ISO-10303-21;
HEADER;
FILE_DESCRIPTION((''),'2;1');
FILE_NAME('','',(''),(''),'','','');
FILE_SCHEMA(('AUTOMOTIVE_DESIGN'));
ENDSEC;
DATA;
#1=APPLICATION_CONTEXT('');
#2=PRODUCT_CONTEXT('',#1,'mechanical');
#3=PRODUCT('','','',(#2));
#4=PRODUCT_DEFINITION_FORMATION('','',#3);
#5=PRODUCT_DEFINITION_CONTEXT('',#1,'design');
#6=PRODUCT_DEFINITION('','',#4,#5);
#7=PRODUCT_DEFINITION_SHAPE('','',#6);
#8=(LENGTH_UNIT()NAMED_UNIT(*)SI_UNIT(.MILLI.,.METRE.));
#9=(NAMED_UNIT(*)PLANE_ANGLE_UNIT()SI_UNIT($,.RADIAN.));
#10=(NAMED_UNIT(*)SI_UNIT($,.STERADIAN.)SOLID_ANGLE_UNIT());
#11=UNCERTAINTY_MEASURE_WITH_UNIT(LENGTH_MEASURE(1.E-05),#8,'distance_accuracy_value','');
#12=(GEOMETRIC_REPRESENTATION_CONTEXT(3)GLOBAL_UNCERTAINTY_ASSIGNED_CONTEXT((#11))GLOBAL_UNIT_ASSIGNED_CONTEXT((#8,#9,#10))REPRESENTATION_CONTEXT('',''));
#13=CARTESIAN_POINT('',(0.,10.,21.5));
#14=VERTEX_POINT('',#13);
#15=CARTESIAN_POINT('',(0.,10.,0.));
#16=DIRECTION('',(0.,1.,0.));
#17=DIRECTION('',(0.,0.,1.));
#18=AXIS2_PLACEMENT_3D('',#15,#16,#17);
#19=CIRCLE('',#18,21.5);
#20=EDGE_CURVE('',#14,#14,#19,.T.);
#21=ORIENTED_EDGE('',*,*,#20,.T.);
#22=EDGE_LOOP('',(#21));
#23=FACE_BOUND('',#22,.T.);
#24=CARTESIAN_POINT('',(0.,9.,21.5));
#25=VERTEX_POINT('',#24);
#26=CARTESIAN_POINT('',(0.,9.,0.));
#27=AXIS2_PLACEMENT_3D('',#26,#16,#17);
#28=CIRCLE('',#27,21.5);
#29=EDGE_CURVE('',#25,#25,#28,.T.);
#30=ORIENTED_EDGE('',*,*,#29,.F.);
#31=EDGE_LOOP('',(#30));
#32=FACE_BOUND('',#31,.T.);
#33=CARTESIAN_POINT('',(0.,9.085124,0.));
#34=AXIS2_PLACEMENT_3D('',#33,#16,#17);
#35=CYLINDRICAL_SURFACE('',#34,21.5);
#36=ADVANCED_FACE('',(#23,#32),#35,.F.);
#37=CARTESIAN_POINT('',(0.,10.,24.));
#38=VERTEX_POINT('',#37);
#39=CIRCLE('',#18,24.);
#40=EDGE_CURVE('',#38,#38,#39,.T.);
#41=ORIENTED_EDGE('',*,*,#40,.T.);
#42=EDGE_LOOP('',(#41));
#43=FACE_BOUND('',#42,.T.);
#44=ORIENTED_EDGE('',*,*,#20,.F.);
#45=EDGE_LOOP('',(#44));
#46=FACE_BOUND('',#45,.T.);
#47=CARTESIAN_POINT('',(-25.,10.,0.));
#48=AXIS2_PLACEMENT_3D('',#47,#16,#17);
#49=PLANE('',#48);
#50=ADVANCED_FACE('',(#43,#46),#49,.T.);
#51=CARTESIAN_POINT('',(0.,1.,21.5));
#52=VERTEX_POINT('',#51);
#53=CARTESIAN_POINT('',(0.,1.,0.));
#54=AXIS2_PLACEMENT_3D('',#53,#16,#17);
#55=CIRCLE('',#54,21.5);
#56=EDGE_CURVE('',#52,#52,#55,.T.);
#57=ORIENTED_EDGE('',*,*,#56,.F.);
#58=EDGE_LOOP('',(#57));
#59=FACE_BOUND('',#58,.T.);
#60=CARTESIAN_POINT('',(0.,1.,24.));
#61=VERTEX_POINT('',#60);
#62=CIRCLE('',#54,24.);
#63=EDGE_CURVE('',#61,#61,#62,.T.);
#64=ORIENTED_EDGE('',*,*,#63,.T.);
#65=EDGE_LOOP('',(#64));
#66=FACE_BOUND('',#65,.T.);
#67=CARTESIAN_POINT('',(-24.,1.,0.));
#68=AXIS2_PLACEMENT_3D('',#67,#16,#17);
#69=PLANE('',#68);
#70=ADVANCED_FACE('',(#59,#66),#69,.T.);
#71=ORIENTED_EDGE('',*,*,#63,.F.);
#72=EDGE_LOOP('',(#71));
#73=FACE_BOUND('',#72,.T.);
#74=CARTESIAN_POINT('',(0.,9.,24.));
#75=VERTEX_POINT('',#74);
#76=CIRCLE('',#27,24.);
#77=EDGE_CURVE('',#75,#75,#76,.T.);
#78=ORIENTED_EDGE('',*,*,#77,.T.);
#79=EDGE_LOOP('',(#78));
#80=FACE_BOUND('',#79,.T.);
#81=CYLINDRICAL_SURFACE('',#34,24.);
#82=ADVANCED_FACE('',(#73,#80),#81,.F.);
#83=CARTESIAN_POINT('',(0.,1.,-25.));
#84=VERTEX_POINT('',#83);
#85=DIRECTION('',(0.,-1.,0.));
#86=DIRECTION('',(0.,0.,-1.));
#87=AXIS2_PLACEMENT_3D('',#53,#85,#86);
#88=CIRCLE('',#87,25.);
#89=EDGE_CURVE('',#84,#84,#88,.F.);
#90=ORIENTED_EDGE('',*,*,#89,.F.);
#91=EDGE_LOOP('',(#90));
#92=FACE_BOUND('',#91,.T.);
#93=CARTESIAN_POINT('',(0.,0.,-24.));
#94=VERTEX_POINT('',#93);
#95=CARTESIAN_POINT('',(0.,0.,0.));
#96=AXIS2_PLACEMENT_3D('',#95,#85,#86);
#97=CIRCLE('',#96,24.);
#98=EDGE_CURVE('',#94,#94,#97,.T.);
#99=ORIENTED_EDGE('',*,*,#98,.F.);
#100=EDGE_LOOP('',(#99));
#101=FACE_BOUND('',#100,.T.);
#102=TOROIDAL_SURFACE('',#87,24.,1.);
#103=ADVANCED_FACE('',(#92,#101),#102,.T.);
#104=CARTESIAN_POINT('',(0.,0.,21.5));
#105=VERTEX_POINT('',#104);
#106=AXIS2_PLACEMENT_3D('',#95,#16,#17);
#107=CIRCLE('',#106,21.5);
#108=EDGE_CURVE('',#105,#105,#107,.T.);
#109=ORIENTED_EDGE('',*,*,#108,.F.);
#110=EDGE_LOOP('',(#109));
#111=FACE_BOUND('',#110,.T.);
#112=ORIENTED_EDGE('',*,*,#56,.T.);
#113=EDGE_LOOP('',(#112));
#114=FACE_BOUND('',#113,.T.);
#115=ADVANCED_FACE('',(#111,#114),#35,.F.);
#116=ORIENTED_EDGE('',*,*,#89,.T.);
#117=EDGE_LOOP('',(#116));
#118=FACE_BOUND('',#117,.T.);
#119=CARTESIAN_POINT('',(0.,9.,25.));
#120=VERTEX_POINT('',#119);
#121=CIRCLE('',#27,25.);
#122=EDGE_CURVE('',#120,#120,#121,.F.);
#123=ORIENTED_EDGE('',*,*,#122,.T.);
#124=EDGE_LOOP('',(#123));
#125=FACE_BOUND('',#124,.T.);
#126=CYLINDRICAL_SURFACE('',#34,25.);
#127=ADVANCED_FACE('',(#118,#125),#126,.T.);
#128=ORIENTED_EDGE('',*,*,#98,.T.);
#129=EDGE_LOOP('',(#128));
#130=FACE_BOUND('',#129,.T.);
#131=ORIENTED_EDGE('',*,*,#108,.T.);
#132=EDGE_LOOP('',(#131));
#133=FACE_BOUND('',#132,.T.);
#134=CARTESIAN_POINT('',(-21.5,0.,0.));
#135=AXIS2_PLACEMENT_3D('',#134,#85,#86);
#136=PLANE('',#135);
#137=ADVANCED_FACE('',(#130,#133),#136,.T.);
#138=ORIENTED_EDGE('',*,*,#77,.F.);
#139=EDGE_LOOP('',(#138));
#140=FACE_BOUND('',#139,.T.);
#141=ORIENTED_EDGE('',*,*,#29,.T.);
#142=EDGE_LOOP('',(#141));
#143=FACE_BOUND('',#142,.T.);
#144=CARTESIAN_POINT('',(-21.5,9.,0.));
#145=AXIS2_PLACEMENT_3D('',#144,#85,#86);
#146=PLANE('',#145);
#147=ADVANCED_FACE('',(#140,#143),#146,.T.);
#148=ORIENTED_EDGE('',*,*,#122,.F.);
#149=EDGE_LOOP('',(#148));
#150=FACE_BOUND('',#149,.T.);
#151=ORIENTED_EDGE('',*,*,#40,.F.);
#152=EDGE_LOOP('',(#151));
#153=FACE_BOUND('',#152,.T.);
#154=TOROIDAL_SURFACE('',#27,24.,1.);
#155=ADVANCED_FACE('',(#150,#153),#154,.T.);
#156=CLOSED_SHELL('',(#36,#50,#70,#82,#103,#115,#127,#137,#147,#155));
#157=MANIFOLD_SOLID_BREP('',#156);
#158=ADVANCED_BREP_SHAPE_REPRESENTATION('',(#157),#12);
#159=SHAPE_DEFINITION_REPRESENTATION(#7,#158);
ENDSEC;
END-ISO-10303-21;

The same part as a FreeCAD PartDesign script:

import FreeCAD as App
import Part
import Sketcher
from FreeCAD import Vector


def edges_at(feature, points):
    """Names of the edges that pass closest to the given points."""
    edges = feature.Shape.Edges
    near = lambda p: min(range(len(edges)), key=lambda i: edges[i].distToShape(Part.Vertex(*p))[0])
    return sorted({f"Edge{near(p) + 1}" for p in points})


def add_polygon(sketch, points):
    """Adds a closed chain of lines whose ends are joined by coincident constraints."""
    first, n = sketch.GeometryCount, len(points)
    for a, b in zip(points, points[1:] + points[:1]):
        sketch.addGeometry(Part.LineSegment(App.Vector(*a, 0), App.Vector(*b, 0)), False)
    for i in range(n):
        sketch.addConstraint(Sketcher.Constraint("Coincident", first + i, 2, first + (i + 1) % n, 1))

doc = App.newDocument("Part")
params = doc.addObject("Spreadsheet::Sheet", "Params")
for row, (alias, value) in enumerate([
    ("sketch1_height", "1 mm"),
    ("sketch1_height2", "8 mm"),
    ("sketch1_width", "3.5 mm"),
    ("sketch1_width2", "2.5 mm"),
    ("revolution_angle", "360 deg"),
    ("fillet_radius", "1 mm"),
], start=1):
    params.set(f"A{row}", alias)
    params.set(f"B{row}", "=" + value)
    params.setAlias(f"B{row}", alias)

body = doc.addObject("PartDesign::Body", "Body")

sketch1 = body.newObject("Sketcher::SketchObject", "Sketch")
sketch1.AttachmentSupport = (doc.getObject("XY_Plane"), [""])
sketch1.MapMode = "FlatFace"
add_polygon(sketch1, [(-25, 0), (-21.5, 0), (-21.5, 1), (-24, 1), (-24, 9), (-21.5, 9), (-21.5, 10), (-25, 10)])
sketch1.addConstraint([
    Sketcher.Constraint("Horizontal", 0),
    Sketcher.Constraint("Vertical", 1),
    Sketcher.Constraint("Horizontal", 2),
    Sketcher.Constraint("Vertical", 3),
    Sketcher.Constraint("Horizontal", 4),
    Sketcher.Constraint("Vertical", 5),
    Sketcher.Constraint("Horizontal", 6),
    Sketcher.Constraint("Vertical", 7),
    Sketcher.Constraint("PointOnObject", 0, 2, -1),
    Sketcher.Constraint("Vertical", 1, 2, 4, 2),
    Sketcher.Constraint("Equal", 1, 5),
    Sketcher.Constraint("DistanceY", 1, 1, 1, 2, 1.0),
    Sketcher.Constraint("DistanceY", 3, 1, 3, 2, 8.0),
    Sketcher.Constraint("DistanceX", 0, 1, 0, 2, 3.5),
    Sketcher.Constraint("DistanceX", 2, 2, 2, 1, 2.5),
    Sketcher.Constraint("DistanceX", 2, 2, -1, 1, 24.0),
])
sketch1.setExpression("Constraints[19]", "Params.sketch1_height")
sketch1.setExpression("Constraints[20]", "Params.sketch1_height2")
sketch1.setExpression("Constraints[21]", "Params.sketch1_width")
sketch1.setExpression("Constraints[22]", "Params.sketch1_width2")
revolution = body.newObject("PartDesign::Revolution", "Revolution")
revolution.Profile = sketch1
revolution.ReferenceAxis = (sketch1, ["V_Axis"])
revolution.setExpression("Angle", "Params.revolution_angle")
doc.recompute()

fillet = body.newObject("PartDesign::Fillet", "Fillet")
fillet.Base = (revolution, edges_at(revolution, [(0, 0, -25), (0, 10, -25)]))
fillet.setExpression("Radius", "Params.fillet_radius")

doc.recompute()
